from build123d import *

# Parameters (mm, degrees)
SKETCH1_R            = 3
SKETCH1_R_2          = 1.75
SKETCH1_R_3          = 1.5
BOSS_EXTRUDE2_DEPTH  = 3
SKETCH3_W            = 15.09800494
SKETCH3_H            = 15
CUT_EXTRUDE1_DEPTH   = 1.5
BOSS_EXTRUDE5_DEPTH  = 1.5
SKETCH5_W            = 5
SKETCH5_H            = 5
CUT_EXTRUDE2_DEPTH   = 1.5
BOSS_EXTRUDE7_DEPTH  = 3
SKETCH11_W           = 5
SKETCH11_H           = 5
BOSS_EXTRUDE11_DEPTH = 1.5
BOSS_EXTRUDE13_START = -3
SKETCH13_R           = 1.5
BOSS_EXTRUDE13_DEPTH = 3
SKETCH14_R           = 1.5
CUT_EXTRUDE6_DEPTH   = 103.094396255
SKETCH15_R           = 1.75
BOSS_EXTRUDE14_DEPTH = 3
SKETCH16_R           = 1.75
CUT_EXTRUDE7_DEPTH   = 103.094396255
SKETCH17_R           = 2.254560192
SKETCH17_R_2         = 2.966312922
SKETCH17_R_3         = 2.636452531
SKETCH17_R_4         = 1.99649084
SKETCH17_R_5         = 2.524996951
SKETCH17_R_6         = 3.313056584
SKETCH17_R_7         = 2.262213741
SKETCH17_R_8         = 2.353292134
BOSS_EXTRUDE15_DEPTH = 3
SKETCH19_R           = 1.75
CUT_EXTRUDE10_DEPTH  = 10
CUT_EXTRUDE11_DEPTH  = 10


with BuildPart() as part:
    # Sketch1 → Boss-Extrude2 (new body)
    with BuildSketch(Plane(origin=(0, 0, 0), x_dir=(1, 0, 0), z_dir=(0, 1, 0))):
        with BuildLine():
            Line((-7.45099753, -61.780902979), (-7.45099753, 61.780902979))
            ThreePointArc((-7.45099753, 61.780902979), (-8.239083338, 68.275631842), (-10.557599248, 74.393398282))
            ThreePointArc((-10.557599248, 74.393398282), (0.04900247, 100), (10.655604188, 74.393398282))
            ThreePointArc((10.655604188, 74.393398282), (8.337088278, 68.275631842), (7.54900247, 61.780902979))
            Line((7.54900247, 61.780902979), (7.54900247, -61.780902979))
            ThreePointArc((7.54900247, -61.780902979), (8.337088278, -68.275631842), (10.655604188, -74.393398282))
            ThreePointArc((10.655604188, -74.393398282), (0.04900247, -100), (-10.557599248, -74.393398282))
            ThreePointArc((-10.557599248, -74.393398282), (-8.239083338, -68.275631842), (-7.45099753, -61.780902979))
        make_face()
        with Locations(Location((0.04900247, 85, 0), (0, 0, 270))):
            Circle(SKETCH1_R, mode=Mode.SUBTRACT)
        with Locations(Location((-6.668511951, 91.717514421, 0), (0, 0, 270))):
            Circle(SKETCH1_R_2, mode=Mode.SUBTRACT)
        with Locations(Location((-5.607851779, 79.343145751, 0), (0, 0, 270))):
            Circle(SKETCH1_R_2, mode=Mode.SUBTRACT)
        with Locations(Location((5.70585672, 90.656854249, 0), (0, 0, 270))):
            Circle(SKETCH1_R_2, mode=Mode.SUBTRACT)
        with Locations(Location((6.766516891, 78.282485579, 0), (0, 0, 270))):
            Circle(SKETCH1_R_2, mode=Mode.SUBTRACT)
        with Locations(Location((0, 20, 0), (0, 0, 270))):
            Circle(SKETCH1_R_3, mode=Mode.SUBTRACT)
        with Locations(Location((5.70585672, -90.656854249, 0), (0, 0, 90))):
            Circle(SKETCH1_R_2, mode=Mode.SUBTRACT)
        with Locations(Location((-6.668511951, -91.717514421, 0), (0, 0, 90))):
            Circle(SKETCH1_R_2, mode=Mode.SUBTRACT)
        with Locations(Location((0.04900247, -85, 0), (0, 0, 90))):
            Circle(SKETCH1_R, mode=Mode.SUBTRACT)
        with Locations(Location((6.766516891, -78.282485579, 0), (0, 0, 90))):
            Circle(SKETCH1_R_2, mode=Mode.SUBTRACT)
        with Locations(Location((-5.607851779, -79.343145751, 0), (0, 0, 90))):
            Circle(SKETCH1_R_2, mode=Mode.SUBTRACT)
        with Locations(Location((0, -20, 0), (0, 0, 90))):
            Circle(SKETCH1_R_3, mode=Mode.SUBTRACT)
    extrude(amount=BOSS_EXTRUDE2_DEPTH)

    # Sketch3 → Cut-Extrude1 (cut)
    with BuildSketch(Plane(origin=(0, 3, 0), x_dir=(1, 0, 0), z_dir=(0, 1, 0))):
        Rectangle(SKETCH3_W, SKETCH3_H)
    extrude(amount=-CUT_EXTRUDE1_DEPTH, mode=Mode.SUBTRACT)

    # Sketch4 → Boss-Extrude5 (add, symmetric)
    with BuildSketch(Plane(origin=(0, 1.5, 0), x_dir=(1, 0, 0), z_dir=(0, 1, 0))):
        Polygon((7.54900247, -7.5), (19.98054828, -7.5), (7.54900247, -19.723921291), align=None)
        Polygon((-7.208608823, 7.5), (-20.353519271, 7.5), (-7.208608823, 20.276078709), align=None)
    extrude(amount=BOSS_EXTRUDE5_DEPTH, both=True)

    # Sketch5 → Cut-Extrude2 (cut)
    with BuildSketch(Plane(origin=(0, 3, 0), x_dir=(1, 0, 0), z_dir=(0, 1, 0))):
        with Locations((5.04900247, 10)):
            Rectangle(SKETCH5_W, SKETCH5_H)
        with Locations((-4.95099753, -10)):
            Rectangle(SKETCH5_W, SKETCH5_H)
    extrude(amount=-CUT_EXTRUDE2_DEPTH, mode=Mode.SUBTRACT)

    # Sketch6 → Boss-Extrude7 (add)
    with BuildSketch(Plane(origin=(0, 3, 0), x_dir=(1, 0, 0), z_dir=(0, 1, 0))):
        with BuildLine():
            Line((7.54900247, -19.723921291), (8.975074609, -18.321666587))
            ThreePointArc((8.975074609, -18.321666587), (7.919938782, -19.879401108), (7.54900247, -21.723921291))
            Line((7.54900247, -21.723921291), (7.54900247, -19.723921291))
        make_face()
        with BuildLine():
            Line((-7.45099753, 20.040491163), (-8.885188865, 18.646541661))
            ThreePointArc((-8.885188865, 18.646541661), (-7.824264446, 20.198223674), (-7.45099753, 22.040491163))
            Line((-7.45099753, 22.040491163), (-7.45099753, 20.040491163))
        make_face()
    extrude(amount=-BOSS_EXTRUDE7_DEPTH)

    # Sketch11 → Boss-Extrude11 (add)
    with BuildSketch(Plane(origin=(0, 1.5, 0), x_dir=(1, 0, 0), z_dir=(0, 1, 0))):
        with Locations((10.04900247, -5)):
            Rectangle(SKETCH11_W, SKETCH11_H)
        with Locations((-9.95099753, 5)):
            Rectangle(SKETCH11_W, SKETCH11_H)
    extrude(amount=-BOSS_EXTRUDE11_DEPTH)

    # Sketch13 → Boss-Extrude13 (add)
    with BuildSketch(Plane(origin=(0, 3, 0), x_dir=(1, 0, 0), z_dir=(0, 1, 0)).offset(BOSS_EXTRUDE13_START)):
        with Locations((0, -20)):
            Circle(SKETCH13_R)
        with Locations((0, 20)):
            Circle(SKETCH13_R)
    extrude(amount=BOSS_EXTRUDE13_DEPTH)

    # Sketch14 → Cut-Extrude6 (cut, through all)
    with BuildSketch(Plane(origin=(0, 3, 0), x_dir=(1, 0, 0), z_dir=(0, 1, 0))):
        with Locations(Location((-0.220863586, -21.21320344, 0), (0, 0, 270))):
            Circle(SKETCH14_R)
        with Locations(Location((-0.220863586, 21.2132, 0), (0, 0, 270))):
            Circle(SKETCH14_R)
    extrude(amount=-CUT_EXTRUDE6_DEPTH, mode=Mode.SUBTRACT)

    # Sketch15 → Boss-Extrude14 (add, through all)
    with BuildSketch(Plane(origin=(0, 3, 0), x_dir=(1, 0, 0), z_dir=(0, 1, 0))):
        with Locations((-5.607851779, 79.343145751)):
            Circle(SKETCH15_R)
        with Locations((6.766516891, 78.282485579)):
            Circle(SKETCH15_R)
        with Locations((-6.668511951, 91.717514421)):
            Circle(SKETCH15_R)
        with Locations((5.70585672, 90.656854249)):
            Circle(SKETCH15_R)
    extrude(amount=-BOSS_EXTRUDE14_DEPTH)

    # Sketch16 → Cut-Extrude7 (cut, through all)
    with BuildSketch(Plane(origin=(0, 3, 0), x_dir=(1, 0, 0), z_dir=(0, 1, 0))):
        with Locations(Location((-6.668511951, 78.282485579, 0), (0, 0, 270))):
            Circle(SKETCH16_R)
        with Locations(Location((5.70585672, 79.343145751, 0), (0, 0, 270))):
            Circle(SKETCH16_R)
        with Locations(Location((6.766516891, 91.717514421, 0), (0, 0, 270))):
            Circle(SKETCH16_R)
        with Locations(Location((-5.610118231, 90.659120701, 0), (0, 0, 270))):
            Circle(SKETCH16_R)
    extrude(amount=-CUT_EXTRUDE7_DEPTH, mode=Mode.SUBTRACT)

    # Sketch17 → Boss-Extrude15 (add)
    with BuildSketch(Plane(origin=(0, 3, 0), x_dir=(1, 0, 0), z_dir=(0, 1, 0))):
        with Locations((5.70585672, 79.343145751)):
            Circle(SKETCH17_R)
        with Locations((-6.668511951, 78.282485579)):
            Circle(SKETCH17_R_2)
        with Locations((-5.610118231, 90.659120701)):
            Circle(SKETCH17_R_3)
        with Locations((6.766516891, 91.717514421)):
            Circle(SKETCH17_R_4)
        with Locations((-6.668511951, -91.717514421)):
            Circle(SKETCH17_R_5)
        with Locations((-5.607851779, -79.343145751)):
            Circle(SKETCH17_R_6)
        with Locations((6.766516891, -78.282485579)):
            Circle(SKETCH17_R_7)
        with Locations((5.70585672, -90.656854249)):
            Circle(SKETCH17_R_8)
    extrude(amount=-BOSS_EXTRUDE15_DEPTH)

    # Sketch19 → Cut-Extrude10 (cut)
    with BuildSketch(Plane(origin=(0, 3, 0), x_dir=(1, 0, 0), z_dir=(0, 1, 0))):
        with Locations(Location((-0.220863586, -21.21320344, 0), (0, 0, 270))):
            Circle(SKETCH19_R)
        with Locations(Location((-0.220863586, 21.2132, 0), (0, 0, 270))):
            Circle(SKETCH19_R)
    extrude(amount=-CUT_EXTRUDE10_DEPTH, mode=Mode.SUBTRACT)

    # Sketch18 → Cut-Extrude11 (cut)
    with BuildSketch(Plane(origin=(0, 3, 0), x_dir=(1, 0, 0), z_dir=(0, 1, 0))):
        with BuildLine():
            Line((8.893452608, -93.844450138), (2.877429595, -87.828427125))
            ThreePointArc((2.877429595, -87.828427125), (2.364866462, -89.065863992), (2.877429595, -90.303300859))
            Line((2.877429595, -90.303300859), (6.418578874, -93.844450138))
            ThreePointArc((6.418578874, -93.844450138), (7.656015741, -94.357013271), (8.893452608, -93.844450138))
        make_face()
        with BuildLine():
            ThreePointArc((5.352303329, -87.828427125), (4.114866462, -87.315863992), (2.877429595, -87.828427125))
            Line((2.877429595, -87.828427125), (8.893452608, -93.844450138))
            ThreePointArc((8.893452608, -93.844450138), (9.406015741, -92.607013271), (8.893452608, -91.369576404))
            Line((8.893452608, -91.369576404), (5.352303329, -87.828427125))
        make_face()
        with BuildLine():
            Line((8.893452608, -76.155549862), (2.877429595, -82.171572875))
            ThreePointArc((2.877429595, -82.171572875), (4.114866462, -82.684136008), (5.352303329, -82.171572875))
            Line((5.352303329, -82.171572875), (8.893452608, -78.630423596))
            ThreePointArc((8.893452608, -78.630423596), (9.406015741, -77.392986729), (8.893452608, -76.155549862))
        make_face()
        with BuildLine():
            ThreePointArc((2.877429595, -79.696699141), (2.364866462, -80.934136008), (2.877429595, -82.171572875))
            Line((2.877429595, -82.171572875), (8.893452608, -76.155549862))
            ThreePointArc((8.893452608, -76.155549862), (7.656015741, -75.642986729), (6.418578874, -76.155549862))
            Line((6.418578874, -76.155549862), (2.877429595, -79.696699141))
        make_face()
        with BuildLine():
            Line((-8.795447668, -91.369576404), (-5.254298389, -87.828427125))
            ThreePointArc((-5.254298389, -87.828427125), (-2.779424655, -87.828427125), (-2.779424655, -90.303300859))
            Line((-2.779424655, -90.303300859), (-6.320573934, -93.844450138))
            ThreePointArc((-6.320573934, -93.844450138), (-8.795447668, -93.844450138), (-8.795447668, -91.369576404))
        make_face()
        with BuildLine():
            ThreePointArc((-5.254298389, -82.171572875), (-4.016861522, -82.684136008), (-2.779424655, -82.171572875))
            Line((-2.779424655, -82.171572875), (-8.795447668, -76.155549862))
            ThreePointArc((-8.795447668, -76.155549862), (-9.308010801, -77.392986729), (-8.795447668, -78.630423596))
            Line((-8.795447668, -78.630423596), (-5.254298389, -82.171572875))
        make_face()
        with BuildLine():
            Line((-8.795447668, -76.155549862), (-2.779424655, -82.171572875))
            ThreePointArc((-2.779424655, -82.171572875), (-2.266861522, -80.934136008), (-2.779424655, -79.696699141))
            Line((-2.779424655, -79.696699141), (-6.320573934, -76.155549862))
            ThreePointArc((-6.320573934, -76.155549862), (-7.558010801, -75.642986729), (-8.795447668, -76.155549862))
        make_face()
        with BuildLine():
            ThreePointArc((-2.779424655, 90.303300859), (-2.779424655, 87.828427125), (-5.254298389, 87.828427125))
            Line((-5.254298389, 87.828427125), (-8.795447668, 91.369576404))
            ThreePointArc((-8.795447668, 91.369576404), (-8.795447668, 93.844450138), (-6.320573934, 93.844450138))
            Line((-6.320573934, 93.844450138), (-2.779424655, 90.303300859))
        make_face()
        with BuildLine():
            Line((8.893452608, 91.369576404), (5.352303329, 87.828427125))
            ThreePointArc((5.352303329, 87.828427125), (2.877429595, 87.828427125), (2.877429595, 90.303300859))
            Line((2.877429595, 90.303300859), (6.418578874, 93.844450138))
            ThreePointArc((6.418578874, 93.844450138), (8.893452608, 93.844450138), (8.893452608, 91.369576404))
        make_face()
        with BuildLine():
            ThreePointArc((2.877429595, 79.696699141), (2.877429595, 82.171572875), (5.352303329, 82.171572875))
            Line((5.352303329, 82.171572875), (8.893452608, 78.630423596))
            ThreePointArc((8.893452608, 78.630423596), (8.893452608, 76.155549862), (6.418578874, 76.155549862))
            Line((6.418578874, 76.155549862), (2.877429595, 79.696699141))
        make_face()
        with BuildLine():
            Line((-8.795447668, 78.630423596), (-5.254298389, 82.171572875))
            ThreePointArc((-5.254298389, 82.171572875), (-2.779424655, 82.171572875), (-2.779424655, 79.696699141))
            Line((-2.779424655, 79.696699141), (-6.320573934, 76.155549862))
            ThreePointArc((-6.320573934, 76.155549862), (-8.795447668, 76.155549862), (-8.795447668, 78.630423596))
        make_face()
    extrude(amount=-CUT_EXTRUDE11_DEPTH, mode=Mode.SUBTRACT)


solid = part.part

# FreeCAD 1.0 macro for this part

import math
import FreeCAD as App
import Part
import Sketcher
from FreeCAD import Vector


def add_polygon(sketch, points):
    """Adds a closed chain of lines whose ends are joined by coincident constraints."""
    first, n = sketch.GeometryCount, len(points)
    for a, b in zip(points, points[1:] + points[:1]):
        sketch.addGeometry(Part.LineSegment(App.Vector(*a, 0), App.Vector(*b, 0)), False)
    for i in range(n):
        sketch.addConstraint(Sketcher.Constraint("Coincident", first + i, 2, first + (i + 1) % n, 1))

doc = App.newDocument("Part")
body = doc.addObject("PartDesign::Body", "Body")

sketch1 = doc.addObject("Sketcher::SketchObject", "Sketch")
body.addObject(sketch1)
sketch1.AttachmentSupport = (doc.XZ_Plane, [""])
sketch1.MapMode = "FlatFace"
sketch1.addGeometry(Part.LineSegment(Vector(-7.450998, -61.780903, 0), Vector(-7.450998, 61.780903, 0)), False)
sketch1.addGeometry(Part.ArcOfCircle(Part.Circle(Vector(-34.607039, 61.780903, 0), Vector(0, 0, 1), 27.156042), math.radians(0), math.radians(27.674327)), False)
sketch1.addGeometry(Part.ArcOfCircle(Part.Circle(Vector(0.049002, 85, 0), Vector(0, 0, 1), 15), math.radians(-45), math.radians(225)), False)
sketch1.addGeometry(Part.ArcOfCircle(Part.Circle(Vector(34.705044, 61.780903, 0), Vector(0, 0, 1), 27.156042), math.radians(152.325673), math.radians(180)), False)
sketch1.addGeometry(Part.LineSegment(Vector(7.549002, 61.780903, 0), Vector(7.549002, -61.780903, 0)), False)
sketch1.addGeometry(Part.ArcOfCircle(Part.Circle(Vector(34.705044, -61.780903, 0), Vector(0, 0, 1), 27.156042), math.radians(180), math.radians(207.674327)), False)
sketch1.addGeometry(Part.ArcOfCircle(Part.Circle(Vector(0.049002, -85, 0), Vector(0, 0, 1), 15), math.radians(135), math.radians(405)), False)
sketch1.addGeometry(Part.ArcOfCircle(Part.Circle(Vector(-34.607039, -61.780903, 0), Vector(0, 0, 1), 27.156042), math.radians(-27.674327), math.radians(0)), False)
sketch1.addGeometry(Part.Circle(Vector(6.766517, 78.282486, 0), Vector(0, 0, 1), 1.75), False)
sketch1.addGeometry(Part.Circle(Vector(5.705857, 90.656854, 0), Vector(0, 0, 1), 1.75), False)
sketch1.addGeometry(Part.Circle(Vector(0.049002, 85, 0), Vector(0, 0, 1), 3), False)
sketch1.addGeometry(Part.Circle(Vector(-5.607852, 79.343146, 0), Vector(0, 0, 1), 1.75), False)
sketch1.addGeometry(Part.Circle(Vector(-6.668512, 91.717514, 0), Vector(0, 0, 1), 1.75), False)
sketch1.addGeometry(Part.Circle(Vector(0, 20, 0), Vector(0, 0, 1), 1.5), False)
sketch1.addGeometry(Part.Circle(Vector(6.766517, -78.282486, 0), Vector(0, 0, 1), 1.75), False)
sketch1.addGeometry(Part.Circle(Vector(5.705857, -90.656854, 0), Vector(0, 0, 1), 1.75), False)
sketch1.addGeometry(Part.Circle(Vector(0, -20, 0), Vector(0, 0, 1), 1.5), False)
sketch1.addGeometry(Part.Circle(Vector(0.049002, -85, 0), Vector(0, 0, 1), 3), False)
sketch1.addGeometry(Part.Circle(Vector(-5.607852, -79.343146, 0), Vector(0, 0, 1), 1.75), False)
sketch1.addGeometry(Part.Circle(Vector(-6.668512, -91.717514, 0), Vector(0, 0, 1), 1.75), False)
sketch1.addConstraint(Sketcher.Constraint("Tangent", 0, 2, 1, 1))
sketch1.addConstraint(Sketcher.Constraint("Coincident", 1, 2, 2, 2))
sketch1.addConstraint(Sketcher.Constraint("Coincident", 2, 1, 3, 1))
sketch1.addConstraint(Sketcher.Constraint("Tangent", 3, 2, 4, 1))
sketch1.addConstraint(Sketcher.Constraint("Tangent", 4, 2, 5, 1))
sketch1.addConstraint(Sketcher.Constraint("Coincident", 5, 2, 6, 2))
sketch1.addConstraint(Sketcher.Constraint("Coincident", 6, 1, 7, 1))
sketch1.addConstraint(Sketcher.Constraint("Tangent", 7, 2, 0, 1))
sketch1.addConstraint(Sketcher.Constraint("Vertical", 0))
sketch1.addConstraint(Sketcher.Constraint("Vertical", 4))
sketch1.addConstraint(Sketcher.Constraint("Coincident", 10, 3, 2, 3))
sketch1.addConstraint(Sketcher.Constraint("Coincident", 17, 3, 6, 3))
sketch1.addConstraint(Sketcher.Constraint("Equal", 1, 3))
sketch1.addConstraint(Sketcher.Constraint("Equal", 3, 5))
sketch1.addConstraint(Sketcher.Constraint("Equal", 2, 6))
sketch1.addConstraint(Sketcher.Constraint("Equal", 5, 7))
sketch1.addConstraint(Sketcher.Constraint("Equal", 8, 9))
sketch1.addConstraint(Sketcher.Constraint("Equal", 9, 11))
sketch1.addConstraint(Sketcher.Constraint("Equal", 11, 12))
sketch1.addConstraint(Sketcher.Constraint("Equal", 12, 14))
sketch1.addConstraint(Sketcher.Constraint("Equal", 14, 15))
sketch1.addConstraint(Sketcher.Constraint("Equal", 13, 16))
sketch1.addConstraint(Sketcher.Constraint("Equal", 10, 17))
sketch1.addConstraint(Sketcher.Constraint("Equal", 15, 18))
sketch1.addConstraint(Sketcher.Constraint("Equal", 18, 19))
sketch1.addConstraint(Sketcher.Constraint("Symmetric", 13, 3, 16, 3, -1, 1))
sketch1.addConstraint(Sketcher.Constraint("Symmetric", 2, 3, 6, 3, -1))
sketch1.addConstraint(Sketcher.Constraint("Symmetric", 8, 3, 14, 3, -1))
sketch1.addConstraint(Sketcher.Constraint("Symmetric", 9, 3, 15, 3, -1))
sketch1.addConstraint(Sketcher.Constraint("Symmetric", 11, 3, 18, 3, -1))
sketch1.addConstraint(Sketcher.Constraint("Symmetric", 12, 3, 19, 3, -1))
sketch1.addConstraint(Sketcher.Constraint("PointOnObject", 13, 3, -2))
sketch1.addConstraint(Sketcher.Constraint("Horizontal", 1, 3, 3, 3))
sketch1.addConstraint(Sketcher.Constraint("Horizontal", 5, 3, 7, 3))
sketch1.addConstraint(Sketcher.Constraint("Horizontal", 1, 2, 2, 1))
sketch1.addConstraint(Sketcher.Constraint("Vertical", 2, 1, 5, 2))
sketch1.addConstraint(Sketcher.Constraint("Diameter", 10, 6.0))
sketch1.addConstraint(Sketcher.Constraint("Diameter", 13, 3.0))
sketch1.addConstraint(Sketcher.Constraint("Radius", 2, 15.0))
sketch1.addConstraint(Sketcher.Constraint("Diameter", 8, 3.5))
sketch1.addConstraint(Sketcher.Constraint("DistanceY", -1, 1, 2, 3, 85.0))
sketch1.addConstraint(Sketcher.Constraint("DistanceY", -1, 1, 13, 3, 20.0))
sketch1.addConstraint(Sketcher.Constraint("DistanceX", 0, 2, 3, 2, 15.0))
sketch1.addConstraint(Sketcher.Constraint("Radius", 1, 27.156042))
sketch1.addConstraint(Sketcher.Constraint("DistanceX", 1, 2, -1, 1, 10.557599))
sketch1.addConstraint(Sketcher.Constraint("DistanceY", -1, 1, 1, 2, 74.393398))
sketch1.addConstraint(Sketcher.Constraint("DistanceX", 11, 3, -1, 1, 5.607852))
sketch1.addConstraint(Sketcher.Constraint("DistanceX", 12, 3, -1, 1, 6.668512))
sketch1.addConstraint(Sketcher.Constraint("DistanceY", 5, 3, 8, 3, 140.063389))
sketch1.addConstraint(Sketcher.Constraint("DistanceX", 9, 3, 8, 3, 1.06066))
sketch1.addConstraint(Sketcher.Constraint("DistanceY", 8, 3, 9, 3, 12.374369))
sketch1.addConstraint(Sketcher.Constraint("DistanceX", 11, 3, 8, 3, 12.374369))
sketch1.addConstraint(Sketcher.Constraint("DistanceY", 8, 3, 11, 3, 1.06066))
sketch1.addConstraint(Sketcher.Constraint("DistanceY", 11, 3, 12, 3, 12.374369))
pad1 = doc.addObject("PartDesign::Pad", "Pad")
body.addObject(pad1)
pad1.Profile = sketch1
pad1.Length = 3
pad1.Reversed = True

sketch2 = doc.addObject("Sketcher::SketchObject", "Sketch001")
body.addObject(sketch2)
sketch2.AttachmentSupport = (doc.XZ_Plane, [""])
sketch2.MapMode = "FlatFace"
sketch2.AttachmentOffset = App.Placement(Vector(0, 0, -3), App.Rotation())
add_polygon(sketch2, [(-7.549002, -7.5), (-7.549002, 7.5), (7.549002, 7.5), (7.549002, -7.5)])
sketch2.addConstraint(Sketcher.Constraint("Vertical", 0))
sketch2.addConstraint(Sketcher.Constraint("Horizontal", 1))
sketch2.addConstraint(Sketcher.Constraint("Vertical", 2))
sketch2.addConstraint(Sketcher.Constraint("Horizontal", 3))
sketch2.addConstraint(Sketcher.Constraint("Symmetric", 0, 2, 2, 2, -1, 1))
sketch2.addConstraint(Sketcher.Constraint("DistanceY", 0, 1, 0, 2, 15.0))
sketch2.addConstraint(Sketcher.Constraint("DistanceX", 1, 1, 1, 2, 15.098005))
pocket1 = doc.addObject("PartDesign::Pocket", "Pocket")
body.addObject(pocket1)
pocket1.Profile = sketch2
pocket1.Length = 1.5
pocket1.Reversed = True

sketch3 = doc.addObject("Sketcher::SketchObject", "Sketch002")
body.addObject(sketch3)
sketch3.AttachmentSupport = (doc.XZ_Plane, [""])
sketch3.MapMode = "FlatFace"
sketch3.AttachmentOffset = App.Placement(Vector(0, 0, -1.5), App.Rotation())
add_polygon(sketch3, [(19.980548, 7.5), (7.549002, 7.5), (7.549002, 19.723921)])
add_polygon(sketch3, [(-20.353519, -7.5), (-7.208609, -7.5), (-7.208609, -20.276079)])
sketch3.addConstraint(Sketcher.Constraint("Horizontal", 0))
sketch3.addConstraint(Sketcher.Constraint("Vertical", 1))
sketch3.addConstraint(Sketcher.Constraint("Horizontal", 3))
sketch3.addConstraint(Sketcher.Constraint("Vertical", 4))
sketch3.addConstraint(Sketcher.Constraint("DistanceY", 3, 2, 0, 2, 15.0))
sketch3.addConstraint(Sketcher.Constraint("DistanceY", 4, 2, 1, 2, 40.0))
sketch3.addConstraint(Sketcher.Constraint("DistanceY", -1, 1, 0, 2, 7.5))
sketch3.addConstraint(Sketcher.Constraint("DistanceX", 3, 1, 3, 2, 13.14491))
sketch3.addConstraint(Sketcher.Constraint("DistanceY", 1, 1, 1, 2, 12.223921))
sketch3.addConstraint(Sketcher.Constraint("DistanceX", 0, 2, 0, 1, 12.431546))
sketch3.addConstraint(Sketcher.Constraint("DistanceX", -1, 1, 2, 2, 19.980548))
sketch3.addConstraint(Sketcher.Constraint("DistanceX", 3, 2, -1, 1, 7.208609))
pad2 = doc.addObject("PartDesign::Pad", "Pad001")
body.addObject(pad2)
pad2.Profile = sketch3
pad2.Length = 3
pad2.Midplane = True

sketch4 = doc.addObject("Sketcher::SketchObject", "Sketch003")
body.addObject(sketch4)
sketch4.AttachmentSupport = (doc.XZ_Plane, [""])
sketch4.MapMode = "FlatFace"
sketch4.AttachmentOffset = App.Placement(Vector(0, 0, -3), App.Rotation())
add_polygon(sketch4, [(2.549002, -12.5), (2.549002, -7.5), (7.549002, -7.5), (7.549002, -12.5)])
add_polygon(sketch4, [(-7.450998, 7.5), (-7.450998, 12.5), (-2.450998, 12.5), (-2.450998, 7.5)])
sketch4.addConstraint(Sketcher.Constraint("Vertical", 0))
sketch4.addConstraint(Sketcher.Constraint("Horizontal", 1))
sketch4.addConstraint(Sketcher.Constraint("Vertical", 2))
sketch4.addConstraint(Sketcher.Constraint("Horizontal", 3))
sketch4.addConstraint(Sketcher.Constraint("Vertical", 4))
sketch4.addConstraint(Sketcher.Constraint("Horizontal", 5))
sketch4.addConstraint(Sketcher.Constraint("Vertical", 6))
sketch4.addConstraint(Sketcher.Constraint("Horizontal", 7))
sketch4.addConstraint(Sketcher.Constraint("Equal", 3, 5))
sketch4.addConstraint(Sketcher.Constraint("Equal", 7, 0))
sketch4.addConstraint(Sketcher.Constraint("Equal", 2, 4))
sketch4.addConstraint(Sketcher.Constraint("DistanceX", 1, 1, 1, 2, 5.0))
sketch4.addConstraint(Sketcher.Constraint("DistanceX", 4, 2, 0, 2, 10.0))
sketch4.addConstraint(Sketcher.Constraint("DistanceY", 0, 2, 4, 2, 20.0))
sketch4.addConstraint(Sketcher.Constraint("DistanceY", 0, 2, -1, 1, 7.5))
sketch4.addConstraint(Sketcher.Constraint("DistanceX", -1, 1, 0, 2, 2.549002))
pocket2 = doc.addObject("PartDesign::Pocket", "Pocket001")
body.addObject(pocket2)
pocket2.Profile = sketch4
pocket2.Length = 1.5
pocket2.Reversed = True

sketch5 = doc.addObject("Sketcher::SketchObject", "Sketch004")
body.addObject(sketch5)
sketch5.AttachmentSupport = (doc.XZ_Plane, [""])
sketch5.MapMode = "FlatFace"
sketch5.AttachmentOffset = App.Placement(Vector(0, 0, -3), App.Rotation())
sketch5.addGeometry(Part.LineSegment(Vector(8.975075, 18.321667, 0), Vector(7.549002, 19.723921, 0)), False)
sketch5.addGeometry(Part.LineSegment(Vector(7.549002, 19.723921, 0), Vector(7.549002, 21.723921, 0)), False)
sketch5.addGeometry(Part.ArcOfCircle(Part.Circle(Vector(12.320507, 21.723921, 0), Vector(0, 0, 1), 4.771504), math.radians(180), math.radians(225.482478)), False)
sketch5.addGeometry(Part.LineSegment(Vector(-8.885189, -18.646542, 0), Vector(-7.450998, -20.040491, 0)), False)
sketch5.addGeometry(Part.LineSegment(Vector(-7.450998, -20.040491, 0), Vector(-7.450998, -22.040491, 0)), False)
sketch5.addGeometry(Part.ArcOfCircle(Part.Circle(Vector(-12.183908, -22.040491, 0), Vector(0, 0, 1), 4.73291), math.radians(0), math.radians(45.815211)), False)
sketch5.addConstraint(Sketcher.Constraint("Coincident", 0, 2, 1, 1))
sketch5.addConstraint(Sketcher.Constraint("Tangent", 1, 2, 2, 1))
sketch5.addConstraint(Sketcher.Constraint("Tangent", 2, 2, 0, 1))
sketch5.addConstraint(Sketcher.Constraint("Coincident", 3, 2, 4, 1))
sketch5.addConstraint(Sketcher.Constraint("Tangent", 4, 2, 5, 1))
sketch5.addConstraint(Sketcher.Constraint("Tangent", 5, 2, 3, 1))
sketch5.addConstraint(Sketcher.Constraint("Vertical", 1))
sketch5.addConstraint(Sketcher.Constraint("Vertical", 4))
sketch5.addConstraint(Sketcher.Constraint("Equal", 1, 4))
sketch5.addConstraint(Sketcher.Constraint("DistanceY", 1, 1, 1, 2, 2.0))
sketch5.addConstraint(Sketcher.Constraint("DistanceX", 3, 2, 0, 2, 15.0))
sketch5.addConstraint(Sketcher.Constraint("Radius", 5, 4.73291))
sketch5.addConstraint(Sketcher.Constraint("Radius", 2, 4.771504))
sketch5.addConstraint(Sketcher.Constraint("DistanceY", -1, 1, 2, 3, 21.723921))
sketch5.addConstraint(Sketcher.Constraint("DistanceY", 5, 3, -1, 1, 22.040491))
sketch5.addConstraint(Sketcher.Constraint("DistanceX", 5, 2, -1, 1, 8.885189))
pad3 = doc.addObject("PartDesign::Pad", "Pad002")
body.addObject(pad3)
pad3.Profile = sketch5
pad3.Length = 3

sketch6 = doc.addObject("Sketcher::SketchObject", "Sketch005")
body.addObject(sketch6)
sketch6.AttachmentSupport = (doc.XZ_Plane, [""])
sketch6.MapMode = "FlatFace"
sketch6.AttachmentOffset = App.Placement(Vector(0, 0, -1.5), App.Rotation())
add_polygon(sketch6, [(7.549002, 2.5), (7.549002, 7.5), (12.549002, 7.5), (12.549002, 2.5)])
add_polygon(sketch6, [(-12.450998, -7.5), (-12.450998, -2.5), (-7.450998, -2.5), (-7.450998, -7.5)])
sketch6.addConstraint(Sketcher.Constraint("Vertical", 0))
sketch6.addConstraint(Sketcher.Constraint("Horizontal", 1))
sketch6.addConstraint(Sketcher.Constraint("Vertical", 2))
sketch6.addConstraint(Sketcher.Constraint("Horizontal", 3))
sketch6.addConstraint(Sketcher.Constraint("Vertical", 4))
sketch6.addConstraint(Sketcher.Constraint("Horizontal", 5))
sketch6.addConstraint(Sketcher.Constraint("Vertical", 6))
sketch6.addConstraint(Sketcher.Constraint("Horizontal", 7))
sketch6.addConstraint(Sketcher.Constraint("Equal", 3, 5))
sketch6.addConstraint(Sketcher.Constraint("Equal", 7, 0))
sketch6.addConstraint(Sketcher.Constraint("Equal", 2, 4))
sketch6.addConstraint(Sketcher.Constraint("DistanceX", 1, 1, 1, 2, 5.0))
sketch6.addConstraint(Sketcher.Constraint("DistanceX", 4, 2, 3, 2, 20.0))
sketch6.addConstraint(Sketcher.Constraint("DistanceY", 4, 2, 3, 2, 5.0))
sketch6.addConstraint(Sketcher.Constraint("DistanceY", -1, 1, 0, 2, 7.5))
sketch6.addConstraint(Sketcher.Constraint("DistanceX", -1, 1, 0, 2, 7.549002))
pad4 = doc.addObject("PartDesign::Pad", "Pad003")
body.addObject(pad4)
pad4.Profile = sketch6
pad4.Length = 1.5

sketch7 = doc.addObject("Sketcher::SketchObject", "Sketch006")
body.addObject(sketch7)
sketch7.AttachmentSupport = (doc.XZ_Plane, [""])
sketch7.MapMode = "FlatFace"
sketch7.addGeometry(Part.Circle(Vector(0, 20, 0), Vector(0, 0, 1), 1.5), False)
sketch7.addGeometry(Part.Circle(Vector(0, -20, 0), Vector(0, 0, 1), 1.5), False)
sketch7.addConstraint(Sketcher.Constraint("Equal", 0, 1))
sketch7.addConstraint(Sketcher.Constraint("Symmetric", 0, 3, 1, 3, -1, 1))
sketch7.addConstraint(Sketcher.Constraint("PointOnObject", 0, 3, -2))
sketch7.addConstraint(Sketcher.Constraint("Diameter", 0, 3.0))
sketch7.addConstraint(Sketcher.Constraint("DistanceY", -1, 1, 0, 3, 20.0))
pad5 = doc.addObject("PartDesign::Pad", "Pad004")
body.addObject(pad5)
pad5.Profile = sketch7
pad5.Length = 3
pad5.Reversed = True

sketch8 = doc.addObject("Sketcher::SketchObject", "Sketch007")
body.addObject(sketch8)
sketch8.AttachmentSupport = (doc.XZ_Plane, [""])
sketch8.MapMode = "FlatFace"
sketch8.AttachmentOffset = App.Placement(Vector(0, 0, -3), App.Rotation())
sketch8.addGeometry(Part.Circle(Vector(-0.220864, 21.213203, 0), Vector(0, 0, 1), 1.5), False)
sketch8.addGeometry(Part.Circle(Vector(-0.220864, -21.2132, 0), Vector(0, 0, 1), 1.5), False)
sketch8.addConstraint(Sketcher.Constraint("Equal", 0, 1))
sketch8.addConstraint(Sketcher.Constraint("Symmetric", 0, 3, 1, 3, -1))
sketch8.addConstraint(Sketcher.Constraint("Diameter", 0, 3.0))
sketch8.addConstraint(Sketcher.Constraint("DistanceY", 1, 3, -1, 1, 21.2132))
sketch8.addConstraint(Sketcher.Constraint("DistanceX", 0, 3, -1, 1, 0.220864))
pocket3 = doc.addObject("PartDesign::Pocket", "Pocket002")
body.addObject(pocket3)
pocket3.Profile = sketch8
pocket3.Type = "ThroughAll"
pocket3.Reversed = True

sketch9 = doc.addObject("Sketcher::SketchObject", "Sketch008")
body.addObject(sketch9)
sketch9.AttachmentSupport = (doc.XZ_Plane, [""])
sketch9.MapMode = "FlatFace"
sketch9.AttachmentOffset = App.Placement(Vector(0, 0, -3), App.Rotation())
sketch9.addGeometry(Part.Circle(Vector(-5.607852, -79.343146, 0), Vector(0, 0, 1), 1.75), False)
sketch9.addGeometry(Part.Circle(Vector(6.766517, -78.282486, 0), Vector(0, 0, 1), 1.75), False)
sketch9.addGeometry(Part.Circle(Vector(-6.668512, -91.717514, 0), Vector(0, 0, 1), 1.75), False)
sketch9.addGeometry(Part.Circle(Vector(5.705857, -90.656854, 0), Vector(0, 0, 1), 1.75), False)
sketch9.addConstraint(Sketcher.Constraint("Equal", 0, 1))
sketch9.addConstraint(Sketcher.Constraint("Equal", 1, 2))
sketch9.addConstraint(Sketcher.Constraint("Equal", 2, 3))
sketch9.addConstraint(Sketcher.Constraint("Diameter", 0, 3.5))
sketch9.addConstraint(Sketcher.Constraint("DistanceX", 0, 3, -1, 1, 5.607852))
sketch9.addConstraint(Sketcher.Constraint("DistanceX", 2, 3, -1, 1, 6.668512))
sketch9.addConstraint(Sketcher.Constraint("DistanceX", 0, 3, 1, 3, 12.374369))
sketch9.addConstraint(Sketcher.Constraint("DistanceY", 0, 3, 1, 3, 1.06066))
sketch9.addConstraint(Sketcher.Constraint("DistanceY", 2, 3, 0, 3, 12.374369))
sketch9.addConstraint(Sketcher.Constraint("DistanceX", 3, 3, 1, 3, 1.06066))
sketch9.addConstraint(Sketcher.Constraint("DistanceY", 3, 3, 1, 3, 12.374369))
sketch9.addConstraint(Sketcher.Constraint("DistanceY", 0, 3, -1, 1, 79.343146))
pad6 = doc.addObject("PartDesign::Pad", "Pad005")
body.addObject(pad6)
pad6.Profile = sketch9
pad6.Length = 3

sketch10 = doc.addObject("Sketcher::SketchObject", "Sketch009")
body.addObject(sketch10)
sketch10.AttachmentSupport = (doc.XZ_Plane, [""])
sketch10.MapMode = "FlatFace"
sketch10.AttachmentOffset = App.Placement(Vector(0, 0, -3), App.Rotation())
sketch10.addGeometry(Part.Circle(Vector(-6.668512, -78.282486, 0), Vector(0, 0, 1), 1.75), False)
sketch10.addGeometry(Part.Circle(Vector(5.705857, -79.343146, 0), Vector(0, 0, 1), 1.75), False)
sketch10.addGeometry(Part.Circle(Vector(6.766517, -91.717514, 0), Vector(0, 0, 1), 1.75), False)
sketch10.addGeometry(Part.Circle(Vector(-5.610118, -90.659121, 0), Vector(0, 0, 1), 1.75), False)
sketch10.addConstraint(Sketcher.Constraint("Equal", 0, 1))
sketch10.addConstraint(Sketcher.Constraint("Equal", 1, 2))
sketch10.addConstraint(Sketcher.Constraint("Equal", 2, 3))
sketch10.addConstraint(Sketcher.Constraint("Diameter", 0, 3.5))
sketch10.addConstraint(Sketcher.Constraint("DistanceX", 0, 3, -1, 1, 6.668512))
sketch10.addConstraint(Sketcher.Constraint("DistanceX", 3, 3, -1, 1, 5.610118))
sketch10.addConstraint(Sketcher.Constraint("DistanceY", 3, 3, -1, 1, 90.659121))
sketch10.addConstraint(Sketcher.Constraint("DistanceX", 0, 3, 1, 3, 12.374369))
sketch10.addConstraint(Sketcher.Constraint("DistanceY", 1, 3, 0, 3, 1.06066))
sketch10.addConstraint(Sketcher.Constraint("DistanceX", 1, 3, 2, 3, 1.06066))
sketch10.addConstraint(Sketcher.Constraint("DistanceY", 2, 3, 1, 3, 12.374369))
sketch10.addConstraint(Sketcher.Constraint("DistanceY", 0, 3, -1, 1, 78.282486))
pocket4 = doc.addObject("PartDesign::Pocket", "Pocket003")
body.addObject(pocket4)
pocket4.Profile = sketch10
pocket4.Type = "ThroughAll"
pocket4.Reversed = True

sketch11 = doc.addObject("Sketcher::SketchObject", "Sketch010")
body.addObject(sketch11)
sketch11.AttachmentSupport = (doc.XZ_Plane, [""])
sketch11.MapMode = "FlatFace"
sketch11.AttachmentOffset = App.Placement(Vector(0, 0, -3), App.Rotation())
sketch11.addGeometry(Part.Circle(Vector(5.705857, -79.343146, 0), Vector(0, 0, 1), 2.25456), False)
sketch11.addGeometry(Part.Circle(Vector(-6.668512, -78.282486, 0), Vector(0, 0, 1), 2.966313), False)
sketch11.addGeometry(Part.Circle(Vector(-5.610118, -90.659121, 0), Vector(0, 0, 1), 2.636453), False)
sketch11.addGeometry(Part.Circle(Vector(6.766517, -91.717514, 0), Vector(0, 0, 1), 1.996491), False)
sketch11.addGeometry(Part.Circle(Vector(-6.668512, 91.717514, 0), Vector(0, 0, 1), 2.524997), False)
sketch11.addGeometry(Part.Circle(Vector(-5.607852, 79.343146, 0), Vector(0, 0, 1), 3.313057), False)
sketch11.addGeometry(Part.Circle(Vector(6.766517, 78.282486, 0), Vector(0, 0, 1), 2.262214), False)
sketch11.addGeometry(Part.Circle(Vector(5.705857, 90.656854, 0), Vector(0, 0, 1), 2.353292), False)
sketch11.addConstraint(Sketcher.Constraint("Vertical", 1, 3, 4, 3))
sketch11.addConstraint(Sketcher.Constraint("Vertical", 3, 3, 6, 3))
sketch11.addConstraint(Sketcher.Constraint("Vertical", 0, 3, 7, 3))
sketch11.addConstraint(Sketcher.Constraint("DistanceY", 1, 3, 4, 3, 170.0))
sketch11.addConstraint(Sketcher.Constraint("DistanceY", 0, 3, 7, 3, 170.0))
sketch11.addConstraint(Sketcher.Constraint("Diameter", 0, 4.50912))
sketch11.addConstraint(Sketcher.Constraint("Diameter", 3, 3.992982))
sketch11.addConstraint(Sketcher.Constraint("Diameter", 1, 5.932626))
sketch11.addConstraint(Sketcher.Constraint("Diameter", 2, 5.272905))
sketch11.addConstraint(Sketcher.Constraint("Diameter", 4, 5.049994))
sketch11.addConstraint(Sketcher.Constraint("Diameter", 5, 6.626113))
sketch11.addConstraint(Sketcher.Constraint("Diameter", 6, 4.524427))
sketch11.addConstraint(Sketcher.Constraint("Diameter", 7, 4.706584))
sketch11.addConstraint(Sketcher.Constraint("DistanceX", 1, 3, -1, 1, 6.668512))
sketch11.addConstraint(Sketcher.Constraint("DistanceX", 2, 3, -1, 1, 5.610118))
sketch11.addConstraint(Sketcher.Constraint("DistanceY", 2, 3, -1, 1, 90.659121))
sketch11.addConstraint(Sketcher.Constraint("DistanceX", 5, 3, -1, 1, 5.607852))
sketch11.addConstraint(Sketcher.Constraint("DistanceX", 1, 3, 0, 3, 12.374369))
sketch11.addConstraint(Sketcher.Constraint("DistanceY", 0, 3, 1, 3, 1.06066))
sketch11.addConstraint(Sketcher.Constraint("DistanceX", 0, 3, 3, 3, 1.06066))
sketch11.addConstraint(Sketcher.Constraint("DistanceY", 3, 3, 0, 3, 12.374369))
sketch11.addConstraint(Sketcher.Constraint("DistanceY", 5, 3, 4, 3, 12.374369))
sketch11.addConstraint(Sketcher.Constraint("DistanceY", 6, 3, 5, 3, 1.06066))
sketch11.addConstraint(Sketcher.Constraint("DistanceY", 0, 3, -1, 1, 79.343146))
pad7 = doc.addObject("PartDesign::Pad", "Pad006")
body.addObject(pad7)
pad7.Profile = sketch11
pad7.Length = 3

sketch12 = doc.addObject("Sketcher::SketchObject", "Sketch011")
body.addObject(sketch12)
sketch12.AttachmentSupport = (doc.XZ_Plane, [""])
sketch12.MapMode = "FlatFace"
sketch12.AttachmentOffset = App.Placement(Vector(0, 0, -3), App.Rotation())
sketch12.addGeometry(Part.Circle(Vector(-0.220864, 21.213203, 0), Vector(0, 0, 1), 1.75), False)
sketch12.addGeometry(Part.Circle(Vector(-0.220864, -21.2132, 0), Vector(0, 0, 1), 1.75), False)
sketch12.addConstraint(Sketcher.Constraint("Equal", 0, 1))
sketch12.addConstraint(Sketcher.Constraint("Symmetric", 0, 3, 1, 3, -1))
sketch12.addConstraint(Sketcher.Constraint("Diameter", 0, 3.5))
sketch12.addConstraint(Sketcher.Constraint("DistanceY", 1, 3, -1, 1, 21.2132))
sketch12.addConstraint(Sketcher.Constraint("DistanceX", 0, 3, -1, 1, 0.220864))
pocket5 = doc.addObject("PartDesign::Pocket", "Pocket004")
body.addObject(pocket5)
pocket5.Profile = sketch12
pocket5.Length = 10
pocket5.Reversed = True

sketch13 = doc.addObject("Sketcher::SketchObject", "Sketch012")
body.addObject(sketch13)
sketch13.AttachmentSupport = (doc.XZ_Plane, [""])
sketch13.MapMode = "FlatFace"
sketch13.AttachmentOffset = App.Placement(Vector(0, 0, -3), App.Rotation())
sketch13.addGeometry(Part.ArcOfCircle(Part.Circle(Vector(4.114866, 89.065864, 0), Vector(0, 0, 1), 1.75), math.radians(135), math.radians(225)), False)
sketch13.addGeometry(Part.LineSegment(Vector(2.87743, 90.303301, 0), Vector(6.418579, 93.84445, 0)), False)
sketch13.addGeometry(Part.ArcOfCircle(Part.Circle(Vector(7.656016, 92.607013, 0), Vector(0, 0, 1), 1.75), math.radians(45), math.radians(135)), False)
sketch13.addGeometry(Part.ArcOfCircle(Part.Circle(Vector(7.656016, 92.607013, 0), Vector(0, 0, 1), 1.75), math.radians(-45), math.radians(45)), False)
sketch13.addGeometry(Part.LineSegment(Vector(8.893453, 91.369576, 0), Vector(5.352303, 87.828427, 0)), False)
sketch13.addGeometry(Part.ArcOfCircle(Part.Circle(Vector(4.114866, 89.065864, 0), Vector(0, 0, 1), 1.75), math.radians(-135), math.radians(-45)), False)
sketch13.addGeometry(Part.ArcOfCircle(Part.Circle(Vector(4.114866, 80.934136, 0), Vector(0, 0, 1), 1.75), math.radians(45), math.radians(135)), False)
sketch13.addGeometry(Part.LineSegment(Vector(5.352303, 82.171573, 0), Vector(8.893453, 78.630424, 0)), False)
sketch13.addGeometry(Part.ArcOfCircle(Part.Circle(Vector(7.656016, 77.392987, 0), Vector(0, 0, 1), 1.75), math.radians(-45), math.radians(45)), False)
sketch13.addGeometry(Part.ArcOfCircle(Part.Circle(Vector(7.656016, 77.392987, 0), Vector(0, 0, 1), 1.75), math.radians(-135), math.radians(-45)), False)
sketch13.addGeometry(Part.LineSegment(Vector(6.418579, 76.15555, 0), Vector(2.87743, 79.696699, 0)), False)
sketch13.addGeometry(Part.ArcOfCircle(Part.Circle(Vector(4.114866, 80.934136, 0), Vector(0, 0, 1), 1.75), math.radians(135), math.radians(225)), False)
sketch13.addGeometry(Part.LineSegment(Vector(-5.254298, 87.828427, 0), Vector(-8.795448, 91.369576, 0)), False)
sketch13.addGeometry(Part.ArcOfCircle(Part.Circle(Vector(-7.558011, 92.607013, 0), Vector(0, 0, 1), 1.75), math.radians(45), math.radians(225)), False)
sketch13.addGeometry(Part.LineSegment(Vector(-6.320574, 93.84445, 0), Vector(-2.779425, 90.303301, 0)), False)
sketch13.addGeometry(Part.ArcOfCircle(Part.Circle(Vector(-4.016862, 89.065864, 0), Vector(0, 0, 1), 1.75), math.radians(-135), math.radians(45)), False)
sketch13.addGeometry(Part.ArcOfCircle(Part.Circle(Vector(-4.016862, 80.934136, 0), Vector(0, 0, 1), 1.75), math.radians(45), math.radians(135)), False)
sketch13.addGeometry(Part.ArcOfCircle(Part.Circle(Vector(-4.016862, 80.934136, 0), Vector(0, 0, 1), 1.75), math.radians(-45), math.radians(45)), False)
sketch13.addGeometry(Part.LineSegment(Vector(-2.779425, 79.696699, 0), Vector(-6.320574, 76.15555, 0)), False)
sketch13.addGeometry(Part.ArcOfCircle(Part.Circle(Vector(-7.558011, 77.392987, 0), Vector(0, 0, 1), 1.75), math.radians(-135), math.radians(-45)), False)
sketch13.addGeometry(Part.ArcOfCircle(Part.Circle(Vector(-7.558011, 77.392987, 0), Vector(0, 0, 1), 1.75), math.radians(135), math.radians(225)), False)
sketch13.addGeometry(Part.LineSegment(Vector(-8.795448, 78.630424, 0), Vector(-5.254298, 82.171573, 0)), False)
sketch13.addGeometry(Part.ArcOfCircle(Part.Circle(Vector(-4.016862, -89.065864, 0), Vector(0, 0, 1), 1.75), math.radians(-45), math.radians(135)), False)
sketch13.addGeometry(Part.LineSegment(Vector(-2.779425, -90.303301, 0), Vector(-6.320574, -93.84445, 0)), False)
sketch13.addGeometry(Part.ArcOfCircle(Part.Circle(Vector(-7.558011, -92.607013, 0), Vector(0, 0, 1), 1.75), math.radians(135), math.radians(315)), False)
sketch13.addGeometry(Part.LineSegment(Vector(-8.795448, -91.369576, 0), Vector(-5.254298, -87.828427, 0)), False)
sketch13.addGeometry(Part.LineSegment(Vector(5.352303, -87.828427, 0), Vector(8.893453, -91.369576, 0)), False)
sketch13.addGeometry(Part.ArcOfCircle(Part.Circle(Vector(7.656016, -92.607013, 0), Vector(0, 0, 1), 1.75), math.radians(-135), math.radians(45)), False)
sketch13.addGeometry(Part.LineSegment(Vector(6.418579, -93.84445, 0), Vector(2.87743, -90.303301, 0)), False)
sketch13.addGeometry(Part.ArcOfCircle(Part.Circle(Vector(4.114866, -89.065864, 0), Vector(0, 0, 1), 1.75), math.radians(45), math.radians(225)), False)
sketch13.addGeometry(Part.ArcOfCircle(Part.Circle(Vector(4.114866, -80.934136, 0), Vector(0, 0, 1), 1.75), math.radians(135), math.radians(315)), False)
sketch13.addGeometry(Part.LineSegment(Vector(2.87743, -79.696699, 0), Vector(6.418579, -76.15555, 0)), False)
sketch13.addGeometry(Part.ArcOfCircle(Part.Circle(Vector(7.656016, -77.392987, 0), Vector(0, 0, 1), 1.75), math.radians(-45), math.radians(135)), False)
sketch13.addGeometry(Part.LineSegment(Vector(8.893453, -78.630424, 0), Vector(5.352303, -82.171573, 0)), False)
sketch13.addGeometry(Part.LineSegment(Vector(-5.254298, -82.171573, 0), Vector(-8.795448, -78.630424, 0)), False)
sketch13.addGeometry(Part.ArcOfCircle(Part.Circle(Vector(-7.558011, -77.392987, 0), Vector(0, 0, 1), 1.75), math.radians(45), math.radians(225)), False)
sketch13.addGeometry(Part.LineSegment(Vector(-6.320574, -76.15555, 0), Vector(-2.779425, -79.696699, 0)), False)
sketch13.addGeometry(Part.ArcOfCircle(Part.Circle(Vector(-4.016862, -80.934136, 0), Vector(0, 0, 1), 1.75), math.radians(-135), math.radians(45)), False)
sketch13.addConstraint(Sketcher.Constraint("Tangent", 0, 1, 1, 1))
sketch13.addConstraint(Sketcher.Constraint("Tangent", 1, 2, 2, 2))
sketch13.addConstraint(Sketcher.Constraint("Tangent", 2, 1, 3, 2))
sketch13.addConstraint(Sketcher.Constraint("Tangent", 3, 1, 4, 1))
sketch13.addConstraint(Sketcher.Constraint("Tangent", 4, 2, 5, 2))
sketch13.addConstraint(Sketcher.Constraint("Tangent", 5, 1, 0, 2))
sketch13.addConstraint(Sketcher.Constraint("Tangent", 6, 1, 7, 1))
sketch13.addConstraint(Sketcher.Constraint("Tangent", 7, 2, 8, 2))
sketch13.addConstraint(Sketcher.Constraint("Tangent", 8, 1, 9, 2))
sketch13.addConstraint(Sketcher.Constraint("Tangent", 9, 1, 10, 1))
sketch13.addConstraint(Sketcher.Constraint("Tangent", 10, 2, 11, 2))
sketch13.addConstraint(Sketcher.Constraint("Tangent", 11, 1, 6, 2))
sketch13.addConstraint(Sketcher.Constraint("Tangent", 12, 2, 13, 2))
sketch13.addConstraint(Sketcher.Constraint("Tangent", 13, 1, 14, 1))
sketch13.addConstraint(Sketcher.Constraint("Tangent", 14, 2, 15, 2))
sketch13.addConstraint(Sketcher.Constraint("Tangent", 15, 1, 12, 1))
sketch13.addConstraint(Sketcher.Constraint("Tangent", 16, 1, 17, 2))
sketch13.addConstraint(Sketcher.Constraint("Tangent", 17, 1, 18, 1))
sketch13.addConstraint(Sketcher.Constraint("Tangent", 18, 2, 19, 2))
sketch13.addConstraint(Sketcher.Constraint("Tangent", 19, 1, 20, 2))
sketch13.addConstraint(Sketcher.Constraint("Tangent", 20, 1, 21, 1))
sketch13.addConstraint(Sketcher.Constraint("Tangent", 21, 2, 16, 2))
sketch13.addConstraint(Sketcher.Constraint("Tangent", 22, 1, 23, 1))
sketch13.addConstraint(Sketcher.Constraint("Tangent", 23, 2, 24, 2))
sketch13.addConstraint(Sketcher.Constraint("Tangent", 24, 1, 25, 1))
sketch13.addConstraint(Sketcher.Constraint("Tangent", 25, 2, 22, 2))
sketch13.addConstraint(Sketcher.Constraint("Tangent", 26, 2, 27, 2))
sketch13.addConstraint(Sketcher.Constraint("Tangent", 27, 1, 28, 1))
sketch13.addConstraint(Sketcher.Constraint("Tangent", 28, 2, 29, 2))
sketch13.addConstraint(Sketcher.Constraint("Tangent", 29, 1, 26, 1))
sketch13.addConstraint(Sketcher.Constraint("Tangent", 30, 1, 31, 1))
sketch13.addConstraint(Sketcher.Constraint("Tangent", 31, 2, 32, 2))
sketch13.addConstraint(Sketcher.Constraint("Tangent", 32, 1, 33, 1))
sketch13.addConstraint(Sketcher.Constraint("Tangent", 33, 2, 30, 2))
sketch13.addConstraint(Sketcher.Constraint("Tangent", 34, 2, 35, 2))
sketch13.addConstraint(Sketcher.Constraint("Tangent", 35, 1, 36, 1))
sketch13.addConstraint(Sketcher.Constraint("Tangent", 36, 2, 37, 2))
sketch13.addConstraint(Sketcher.Constraint("Tangent", 37, 1, 34, 1))
sketch13.addConstraint(Sketcher.Constraint("Equal", 0, 2))
sketch13.addConstraint(Sketcher.Constraint("Equal", 2, 3))
sketch13.addConstraint(Sketcher.Constraint("Equal", 3, 5))
sketch13.addConstraint(Sketcher.Constraint("Equal", 5, 6))
sketch13.addConstraint(Sketcher.Constraint("Equal", 6, 8))
sketch13.addConstraint(Sketcher.Constraint("Equal", 8, 9))
sketch13.addConstraint(Sketcher.Constraint("Equal", 9, 11))
sketch13.addConstraint(Sketcher.Constraint("Equal", 11, 13))
sketch13.addConstraint(Sketcher.Constraint("Equal", 13, 15))
sketch13.addConstraint(Sketcher.Constraint("Equal", 15, 16))
sketch13.addConstraint(Sketcher.Constraint("Equal", 16, 17))
sketch13.addConstraint(Sketcher.Constraint("Equal", 17, 19))
sketch13.addConstraint(Sketcher.Constraint("Equal", 19, 20))
sketch13.addConstraint(Sketcher.Constraint("Equal", 20, 22))
sketch13.addConstraint(Sketcher.Constraint("Equal", 22, 24))
sketch13.addConstraint(Sketcher.Constraint("Equal", 24, 27))
sketch13.addConstraint(Sketcher.Constraint("Equal", 27, 29))
sketch13.addConstraint(Sketcher.Constraint("Equal", 29, 30))
sketch13.addConstraint(Sketcher.Constraint("Equal", 30, 32))
sketch13.addConstraint(Sketcher.Constraint("Equal", 32, 35))
sketch13.addConstraint(Sketcher.Constraint("Equal", 35, 37))
sketch13.addConstraint(Sketcher.Constraint("Symmetric", 15, 3, 22, 3, -1))
sketch13.addConstraint(Sketcher.Constraint("Symmetric", 13, 3, 24, 3, -1))
sketch13.addConstraint(Sketcher.Constraint("Symmetric", 2, 3, 27, 3, -1))
sketch13.addConstraint(Sketcher.Constraint("Symmetric", 0, 3, 29, 3, -1))
sketch13.addConstraint(Sketcher.Constraint("Symmetric", 6, 3, 30, 3, -1))
sketch13.addConstraint(Sketcher.Constraint("Symmetric", 8, 3, 32, 3, -1))
sketch13.addConstraint(Sketcher.Constraint("Symmetric", 19, 3, 35, 3, -1))
sketch13.addConstraint(Sketcher.Constraint("Symmetric", 16, 3, 37, 3, -1))
sketch13.addConstraint(Sketcher.Constraint("Perpendicular", 4, 7))
sketch13.addConstraint(Sketcher.Constraint("Parallel", 10, 12))
sketch13.addConstraint(Sketcher.Constraint("Perpendicular", 14, 18))
sketch13.addConstraint(Sketcher.Constraint("Parallel", 21, 23))
sketch13.addConstraint(Sketcher.Constraint("Horizontal", 3, 3, 13, 3))
sketch13.addConstraint(Sketcher.Constraint("Horizontal", 5, 3, 15, 3))
sketch13.addConstraint(Sketcher.Constraint("Horizontal", 11, 3, 16, 3))
sketch13.addConstraint(Sketcher.Constraint("Horizontal", 9, 3, 19, 3))
sketch13.addConstraint(Sketcher.Constraint("Horizontal", 1, 2, 2, 1))
sketch13.addConstraint(Sketcher.Constraint("Horizontal", 4, 2, 5, 1))
sketch13.addConstraint(Sketcher.Constraint("Horizontal", 8, 1, 9, 1))
sketch13.addConstraint(Sketcher.Constraint("Horizontal", 6, 1, 11, 1))
sketch13.addConstraint(Sketcher.Constraint("Horizontal", 11, 1, 16, 1))
sketch13.addConstraint(Sketcher.Constraint("Horizontal", 18, 2, 19, 1))
sketch13.addConstraint(Sketcher.Constraint("Vertical", 5, 3, 6, 3))
sketch13.addConstraint(Sketcher.Constraint("Vertical", 3, 3, 8, 3))
sketch13.addConstraint(Sketcher.Constraint("Vertical", 15, 3, 16, 3))
sketch13.addConstraint(Sketcher.Constraint("Radius", 0, 1.75))
sketch13.addConstraint(Sketcher.Constraint("DistanceY", 22, 3, 16, 3, 170.0))
sketch13.addConstraint(Sketcher.Constraint("DistanceY", -1, 1, 0, 1, 90.303301))
sketch13.addConstraint(Sketcher.Constraint("DistanceX", 15, 1, -1, 1, 5.254298))
sketch13.addConstraint(Sketcher.Constraint("Distance", 1, 5.007941))
sketch13.addConstraint(Sketcher.Constraint("DistanceX", -1, 1, 0, 1, 2.87743))
pocket6 = doc.addObject("PartDesign::Pocket", "Pocket005")
body.addObject(pocket6)
pocket6.Profile = sketch13
pocket6.Length = 10
pocket6.Reversed = True

doc.recompute()
